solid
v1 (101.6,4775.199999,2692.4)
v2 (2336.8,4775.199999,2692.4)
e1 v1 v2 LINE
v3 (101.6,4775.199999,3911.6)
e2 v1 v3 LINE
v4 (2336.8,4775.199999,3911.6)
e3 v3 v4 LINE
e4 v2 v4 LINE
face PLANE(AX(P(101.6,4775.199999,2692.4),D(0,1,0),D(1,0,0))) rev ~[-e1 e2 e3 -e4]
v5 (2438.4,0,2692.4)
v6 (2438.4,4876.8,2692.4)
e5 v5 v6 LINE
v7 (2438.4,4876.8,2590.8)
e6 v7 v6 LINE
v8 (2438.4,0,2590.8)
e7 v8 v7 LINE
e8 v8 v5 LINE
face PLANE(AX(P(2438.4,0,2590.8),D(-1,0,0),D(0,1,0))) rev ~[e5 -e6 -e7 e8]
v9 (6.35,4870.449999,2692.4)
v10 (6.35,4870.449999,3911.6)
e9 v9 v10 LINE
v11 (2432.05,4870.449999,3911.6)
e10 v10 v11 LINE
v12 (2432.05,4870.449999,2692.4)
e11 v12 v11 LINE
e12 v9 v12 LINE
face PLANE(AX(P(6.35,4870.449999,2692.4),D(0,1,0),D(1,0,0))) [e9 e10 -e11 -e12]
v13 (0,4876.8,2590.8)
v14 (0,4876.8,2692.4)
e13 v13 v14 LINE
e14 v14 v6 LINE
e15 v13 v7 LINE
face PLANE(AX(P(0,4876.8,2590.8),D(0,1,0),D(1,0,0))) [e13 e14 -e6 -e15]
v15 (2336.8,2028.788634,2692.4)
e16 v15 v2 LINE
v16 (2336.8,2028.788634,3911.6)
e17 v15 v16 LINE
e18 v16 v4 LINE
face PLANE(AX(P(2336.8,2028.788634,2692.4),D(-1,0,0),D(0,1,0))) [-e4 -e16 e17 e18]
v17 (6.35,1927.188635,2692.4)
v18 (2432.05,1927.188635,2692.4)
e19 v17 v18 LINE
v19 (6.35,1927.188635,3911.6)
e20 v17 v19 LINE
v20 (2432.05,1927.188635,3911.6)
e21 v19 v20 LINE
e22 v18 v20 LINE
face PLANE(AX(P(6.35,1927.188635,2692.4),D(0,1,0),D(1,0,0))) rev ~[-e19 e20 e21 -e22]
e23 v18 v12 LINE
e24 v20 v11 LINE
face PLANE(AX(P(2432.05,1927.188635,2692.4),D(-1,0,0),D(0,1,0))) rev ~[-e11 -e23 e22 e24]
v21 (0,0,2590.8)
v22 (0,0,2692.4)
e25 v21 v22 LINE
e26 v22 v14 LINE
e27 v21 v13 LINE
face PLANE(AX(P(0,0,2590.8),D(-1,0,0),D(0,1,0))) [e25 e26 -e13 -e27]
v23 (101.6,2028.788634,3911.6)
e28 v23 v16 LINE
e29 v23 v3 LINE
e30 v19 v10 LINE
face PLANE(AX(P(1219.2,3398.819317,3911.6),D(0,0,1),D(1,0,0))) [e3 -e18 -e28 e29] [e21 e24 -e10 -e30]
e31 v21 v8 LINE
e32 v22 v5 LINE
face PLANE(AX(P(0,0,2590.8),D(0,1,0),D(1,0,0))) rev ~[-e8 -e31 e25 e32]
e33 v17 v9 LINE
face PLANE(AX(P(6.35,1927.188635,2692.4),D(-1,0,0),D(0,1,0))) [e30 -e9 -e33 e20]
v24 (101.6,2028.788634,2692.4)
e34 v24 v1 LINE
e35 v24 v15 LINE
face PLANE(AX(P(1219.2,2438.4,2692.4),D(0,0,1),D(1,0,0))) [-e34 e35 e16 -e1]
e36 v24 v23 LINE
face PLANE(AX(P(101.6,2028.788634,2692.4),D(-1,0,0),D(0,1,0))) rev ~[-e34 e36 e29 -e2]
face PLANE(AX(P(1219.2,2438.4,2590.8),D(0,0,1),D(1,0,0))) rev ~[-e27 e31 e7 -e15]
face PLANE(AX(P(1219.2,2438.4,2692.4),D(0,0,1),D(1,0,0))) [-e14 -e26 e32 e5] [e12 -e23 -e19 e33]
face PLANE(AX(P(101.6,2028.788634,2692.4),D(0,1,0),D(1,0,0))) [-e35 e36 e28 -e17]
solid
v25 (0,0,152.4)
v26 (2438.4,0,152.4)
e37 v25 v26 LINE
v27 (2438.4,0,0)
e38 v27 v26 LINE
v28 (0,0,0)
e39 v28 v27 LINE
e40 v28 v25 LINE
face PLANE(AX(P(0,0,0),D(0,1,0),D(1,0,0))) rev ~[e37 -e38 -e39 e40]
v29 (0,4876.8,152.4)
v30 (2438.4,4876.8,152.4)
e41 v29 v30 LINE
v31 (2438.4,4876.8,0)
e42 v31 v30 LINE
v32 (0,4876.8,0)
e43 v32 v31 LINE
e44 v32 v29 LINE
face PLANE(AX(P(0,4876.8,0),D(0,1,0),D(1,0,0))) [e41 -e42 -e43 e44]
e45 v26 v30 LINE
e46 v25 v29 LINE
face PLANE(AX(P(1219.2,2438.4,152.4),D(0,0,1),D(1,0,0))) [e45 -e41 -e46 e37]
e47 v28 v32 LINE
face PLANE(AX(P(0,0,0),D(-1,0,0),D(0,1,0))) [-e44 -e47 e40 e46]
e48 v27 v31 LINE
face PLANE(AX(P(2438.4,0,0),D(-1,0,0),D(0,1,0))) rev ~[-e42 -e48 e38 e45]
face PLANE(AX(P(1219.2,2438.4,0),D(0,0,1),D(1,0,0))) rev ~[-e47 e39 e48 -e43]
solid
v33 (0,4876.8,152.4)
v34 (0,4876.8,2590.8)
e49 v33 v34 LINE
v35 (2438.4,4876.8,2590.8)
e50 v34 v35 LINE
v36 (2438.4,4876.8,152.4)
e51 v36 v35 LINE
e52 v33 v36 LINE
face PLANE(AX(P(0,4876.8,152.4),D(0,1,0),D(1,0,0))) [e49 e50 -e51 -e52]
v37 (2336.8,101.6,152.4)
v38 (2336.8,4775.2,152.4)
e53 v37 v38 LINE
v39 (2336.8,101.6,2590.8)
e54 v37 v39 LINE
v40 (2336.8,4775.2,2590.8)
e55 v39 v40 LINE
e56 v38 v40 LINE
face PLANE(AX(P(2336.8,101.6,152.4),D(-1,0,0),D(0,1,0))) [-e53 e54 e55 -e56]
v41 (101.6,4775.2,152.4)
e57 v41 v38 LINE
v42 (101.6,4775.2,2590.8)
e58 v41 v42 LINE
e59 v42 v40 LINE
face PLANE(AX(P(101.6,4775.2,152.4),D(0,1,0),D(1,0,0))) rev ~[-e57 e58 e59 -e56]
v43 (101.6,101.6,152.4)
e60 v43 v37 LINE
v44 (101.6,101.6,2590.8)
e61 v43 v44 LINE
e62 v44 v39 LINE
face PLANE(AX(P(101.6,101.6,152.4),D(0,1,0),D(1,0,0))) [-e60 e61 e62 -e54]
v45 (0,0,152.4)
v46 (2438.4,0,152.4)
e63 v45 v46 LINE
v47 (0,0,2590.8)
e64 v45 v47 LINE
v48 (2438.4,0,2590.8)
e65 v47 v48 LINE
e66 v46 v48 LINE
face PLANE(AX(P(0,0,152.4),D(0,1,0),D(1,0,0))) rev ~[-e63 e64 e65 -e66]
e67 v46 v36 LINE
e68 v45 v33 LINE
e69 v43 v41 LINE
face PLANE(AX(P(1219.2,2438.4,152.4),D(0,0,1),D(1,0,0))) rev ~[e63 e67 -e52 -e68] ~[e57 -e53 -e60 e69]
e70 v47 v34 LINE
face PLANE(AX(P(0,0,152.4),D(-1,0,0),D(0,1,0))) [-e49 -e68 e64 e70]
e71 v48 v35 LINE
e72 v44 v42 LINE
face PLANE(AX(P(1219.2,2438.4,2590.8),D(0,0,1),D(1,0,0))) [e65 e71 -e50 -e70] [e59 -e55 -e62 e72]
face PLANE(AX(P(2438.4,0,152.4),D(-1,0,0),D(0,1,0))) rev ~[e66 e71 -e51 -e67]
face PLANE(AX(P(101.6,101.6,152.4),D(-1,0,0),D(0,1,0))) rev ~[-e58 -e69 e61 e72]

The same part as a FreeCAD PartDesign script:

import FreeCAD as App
import Part
import Sketcher
Q = App.Units.Quantity


def add_polygon(sketch, points):
    """Adds a closed chain of lines whose ends are joined by coincident constraints."""
    first, n = sketch.GeometryCount, len(points)
    for a, b in zip(points, points[1:] + points[:1]):
        sketch.addGeometry(Part.LineSegment(App.Vector(*a, 0), App.Vector(*b, 0)), False)
    for i in range(n):
        sketch.addConstraint(Sketcher.Constraint("Coincident", first + i, 2, first + (i + 1) % n, 1))

doc = App.newDocument("Part")
body = doc.addObject("PartDesign::Body", "Body")

# Sketch on XY plane
sketch1 = body.newObject("Sketcher::SketchObject", "Sketch")
sketch1.AttachmentSupport = (doc.getObject("XY_Plane"), [""])
sketch1.MapMode = "FlatFace"
add_polygon(sketch1, [(0, 4877), (0, 0), (2438, 0), (2438, 4877)])  # lines 0-3
sketch1.addConstraint([
    Sketcher.Constraint("Vertical", 0),
    Sketcher.Constraint("Horizontal", 1),
    Sketcher.Constraint("Vertical", 2),
    Sketcher.Constraint("Horizontal", 3),
    Sketcher.Constraint("Coincident", 0, 2, -1, 1),
    Sketcher.Constraint("DistanceX", 1, 1, 1, 2, Q("96 in")),
    Sketcher.Constraint("DistanceY", 0, 2, 0, 1, Q("192 in")),
])
pad1 = body.newObject("PartDesign::Pad", "Pad")
pad1.Profile = sketch1
pad1.Length = Q("6 in")
body2 = doc.addObject("PartDesign::Body", "Body001")

# Sketch on XY plane
sketch2 = body2.newObject("Sketcher::SketchObject", "Sketch001")
sketch2.AttachmentSupport = (doc.getObject("XY_Plane001"), [""])
sketch2.MapMode = "FlatFace"
sketch2.AttachmentOffset = App.Placement(App.Vector(0, 0, 6 * 25.4), App.Rotation())
add_polygon(sketch2, [(0, 4877), (0, 0), (2438, 0), (2438, 4877)])  # lines 0-3
add_polygon(sketch2, [(2337, 102), (102, 102), (102, 4775), (2337, 4775)])  # lines 4-7
sketch2.addConstraint([
    Sketcher.Constraint("Vertical", 0),
    Sketcher.Constraint("Horizontal", 1),
    Sketcher.Constraint("Vertical", 2),
    Sketcher.Constraint("Horizontal", 3),
    Sketcher.Constraint("Horizontal", 4),
    Sketcher.Constraint("Vertical", 5),
    Sketcher.Constraint("Horizontal", 6),
    Sketcher.Constraint("Vertical", 7),
    Sketcher.Constraint("Coincident", 0, 2, -1, 1),
    Sketcher.Constraint("DistanceX", 1, 1, 1, 2, Q("96 in")),
    Sketcher.Constraint("DistanceX", 4, 2, 4, 1, Q("88 in")),
    Sketcher.Constraint("DistanceY", 0, 2, 0, 1, Q("192 in")),
    Sketcher.Constraint("DistanceY", 5, 1, 5, 2, Q("184 in")),
    Sketcher.Constraint("DistanceX", -1, 1, 4, 2, Q("4 in")),
    Sketcher.Constraint("DistanceY", -1, 1, 4, 2, Q("4 in")),
])
pad2 = body2.newObject("PartDesign::Pad", "Pad001")
pad2.Profile = sketch2
pad2.Length = Q("96 in")
body3 = doc.addObject("PartDesign::Body", "Body002")

# Sketch on XY plane
sketch3 = body3.newObject("Sketcher::SketchObject", "Sketch002")
sketch3.AttachmentSupport = (doc.getObject("XY_Plane002"), [""])
sketch3.MapMode = "FlatFace"
sketch3.AttachmentOffset = App.Placement(App.Vector(0, 0, 102 * 25.4), App.Rotation())
add_polygon(sketch3, [(0, 4877), (0, 0), (2438, 0), (2438, 4877)])  # lines 0-3
sketch3.addConstraint([
    Sketcher.Constraint("Vertical", 0),
    Sketcher.Constraint("Horizontal", 1),
    Sketcher.Constraint("Vertical", 2),
    Sketcher.Constraint("Horizontal", 3),
    Sketcher.Constraint("Coincident", 0, 2, -1, 1),
    Sketcher.Constraint("DistanceX", 1, 1, 1, 2, Q("96 in")),
    Sketcher.Constraint("DistanceY", 0, 2, 0, 1, Q("192 in")),
])
pad3 = body3.newObject("PartDesign::Pad", "Pad002")
pad3.Profile = sketch3
pad3.Length = Q("4 in")

# Sketch on XY plane
sketch4 = body3.newObject("Sketcher::SketchObject", "Sketch003")
sketch4.AttachmentSupport = (doc.getObject("XY_Plane002"), [""])
sketch4.MapMode = "FlatFace"
sketch4.AttachmentOffset = App.Placement(App.Vector(0, 0, 106 * 25.4), App.Rotation())
add_polygon(sketch4, [(6, 4870), (6, 1927), (2432, 1927), (2432, 4870)])  # lines 0-3
add_polygon(sketch4, [(2337, 2029), (102, 2029), (102, 4775), (2337, 4775)])  # lines 4-7
sketch4.addConstraint([
    Sketcher.Constraint("Vertical", 0),
    Sketcher.Constraint("Horizontal", 1),
    Sketcher.Constraint("Vertical", 2),
    Sketcher.Constraint("Horizontal", 3),
    Sketcher.Constraint("Horizontal", 4),
    Sketcher.Constraint("Vertical", 5),
    Sketcher.Constraint("Horizontal", 6),
    Sketcher.Constraint("Vertical", 7),
    Sketcher.Constraint("DistanceX", 4, 2, 4, 1, Q("88 in")),
    Sketcher.Constraint("DistanceX", 1, 1, 1, 2, Q("95.5 in")),
    Sketcher.Constraint("DistanceX", -1, 1, 4, 2, Q("4 in")),
    Sketcher.Constraint("DistanceY", -1, 1, 5, 2, Q("188 in")),
    Sketcher.Constraint("DistanceY", 0, 2, 4, 2, Q("4 in")),
    Sketcher.Constraint("DistanceX", -1, 1, 0, 2, Q("0.25 in")),
    Sketcher.Constraint("DistanceY", -1, 1, 2, 2, Q("191.75 in")),
    Sketcher.Constraint("DistanceY", 0, 2, 0, 1, 2943.261365),
])
pad4 = body3.newObject("PartDesign::Pad", "Pad003")
pad4.Profile = sketch4
pad4.Length = Q("48 in")

doc.recompute()
